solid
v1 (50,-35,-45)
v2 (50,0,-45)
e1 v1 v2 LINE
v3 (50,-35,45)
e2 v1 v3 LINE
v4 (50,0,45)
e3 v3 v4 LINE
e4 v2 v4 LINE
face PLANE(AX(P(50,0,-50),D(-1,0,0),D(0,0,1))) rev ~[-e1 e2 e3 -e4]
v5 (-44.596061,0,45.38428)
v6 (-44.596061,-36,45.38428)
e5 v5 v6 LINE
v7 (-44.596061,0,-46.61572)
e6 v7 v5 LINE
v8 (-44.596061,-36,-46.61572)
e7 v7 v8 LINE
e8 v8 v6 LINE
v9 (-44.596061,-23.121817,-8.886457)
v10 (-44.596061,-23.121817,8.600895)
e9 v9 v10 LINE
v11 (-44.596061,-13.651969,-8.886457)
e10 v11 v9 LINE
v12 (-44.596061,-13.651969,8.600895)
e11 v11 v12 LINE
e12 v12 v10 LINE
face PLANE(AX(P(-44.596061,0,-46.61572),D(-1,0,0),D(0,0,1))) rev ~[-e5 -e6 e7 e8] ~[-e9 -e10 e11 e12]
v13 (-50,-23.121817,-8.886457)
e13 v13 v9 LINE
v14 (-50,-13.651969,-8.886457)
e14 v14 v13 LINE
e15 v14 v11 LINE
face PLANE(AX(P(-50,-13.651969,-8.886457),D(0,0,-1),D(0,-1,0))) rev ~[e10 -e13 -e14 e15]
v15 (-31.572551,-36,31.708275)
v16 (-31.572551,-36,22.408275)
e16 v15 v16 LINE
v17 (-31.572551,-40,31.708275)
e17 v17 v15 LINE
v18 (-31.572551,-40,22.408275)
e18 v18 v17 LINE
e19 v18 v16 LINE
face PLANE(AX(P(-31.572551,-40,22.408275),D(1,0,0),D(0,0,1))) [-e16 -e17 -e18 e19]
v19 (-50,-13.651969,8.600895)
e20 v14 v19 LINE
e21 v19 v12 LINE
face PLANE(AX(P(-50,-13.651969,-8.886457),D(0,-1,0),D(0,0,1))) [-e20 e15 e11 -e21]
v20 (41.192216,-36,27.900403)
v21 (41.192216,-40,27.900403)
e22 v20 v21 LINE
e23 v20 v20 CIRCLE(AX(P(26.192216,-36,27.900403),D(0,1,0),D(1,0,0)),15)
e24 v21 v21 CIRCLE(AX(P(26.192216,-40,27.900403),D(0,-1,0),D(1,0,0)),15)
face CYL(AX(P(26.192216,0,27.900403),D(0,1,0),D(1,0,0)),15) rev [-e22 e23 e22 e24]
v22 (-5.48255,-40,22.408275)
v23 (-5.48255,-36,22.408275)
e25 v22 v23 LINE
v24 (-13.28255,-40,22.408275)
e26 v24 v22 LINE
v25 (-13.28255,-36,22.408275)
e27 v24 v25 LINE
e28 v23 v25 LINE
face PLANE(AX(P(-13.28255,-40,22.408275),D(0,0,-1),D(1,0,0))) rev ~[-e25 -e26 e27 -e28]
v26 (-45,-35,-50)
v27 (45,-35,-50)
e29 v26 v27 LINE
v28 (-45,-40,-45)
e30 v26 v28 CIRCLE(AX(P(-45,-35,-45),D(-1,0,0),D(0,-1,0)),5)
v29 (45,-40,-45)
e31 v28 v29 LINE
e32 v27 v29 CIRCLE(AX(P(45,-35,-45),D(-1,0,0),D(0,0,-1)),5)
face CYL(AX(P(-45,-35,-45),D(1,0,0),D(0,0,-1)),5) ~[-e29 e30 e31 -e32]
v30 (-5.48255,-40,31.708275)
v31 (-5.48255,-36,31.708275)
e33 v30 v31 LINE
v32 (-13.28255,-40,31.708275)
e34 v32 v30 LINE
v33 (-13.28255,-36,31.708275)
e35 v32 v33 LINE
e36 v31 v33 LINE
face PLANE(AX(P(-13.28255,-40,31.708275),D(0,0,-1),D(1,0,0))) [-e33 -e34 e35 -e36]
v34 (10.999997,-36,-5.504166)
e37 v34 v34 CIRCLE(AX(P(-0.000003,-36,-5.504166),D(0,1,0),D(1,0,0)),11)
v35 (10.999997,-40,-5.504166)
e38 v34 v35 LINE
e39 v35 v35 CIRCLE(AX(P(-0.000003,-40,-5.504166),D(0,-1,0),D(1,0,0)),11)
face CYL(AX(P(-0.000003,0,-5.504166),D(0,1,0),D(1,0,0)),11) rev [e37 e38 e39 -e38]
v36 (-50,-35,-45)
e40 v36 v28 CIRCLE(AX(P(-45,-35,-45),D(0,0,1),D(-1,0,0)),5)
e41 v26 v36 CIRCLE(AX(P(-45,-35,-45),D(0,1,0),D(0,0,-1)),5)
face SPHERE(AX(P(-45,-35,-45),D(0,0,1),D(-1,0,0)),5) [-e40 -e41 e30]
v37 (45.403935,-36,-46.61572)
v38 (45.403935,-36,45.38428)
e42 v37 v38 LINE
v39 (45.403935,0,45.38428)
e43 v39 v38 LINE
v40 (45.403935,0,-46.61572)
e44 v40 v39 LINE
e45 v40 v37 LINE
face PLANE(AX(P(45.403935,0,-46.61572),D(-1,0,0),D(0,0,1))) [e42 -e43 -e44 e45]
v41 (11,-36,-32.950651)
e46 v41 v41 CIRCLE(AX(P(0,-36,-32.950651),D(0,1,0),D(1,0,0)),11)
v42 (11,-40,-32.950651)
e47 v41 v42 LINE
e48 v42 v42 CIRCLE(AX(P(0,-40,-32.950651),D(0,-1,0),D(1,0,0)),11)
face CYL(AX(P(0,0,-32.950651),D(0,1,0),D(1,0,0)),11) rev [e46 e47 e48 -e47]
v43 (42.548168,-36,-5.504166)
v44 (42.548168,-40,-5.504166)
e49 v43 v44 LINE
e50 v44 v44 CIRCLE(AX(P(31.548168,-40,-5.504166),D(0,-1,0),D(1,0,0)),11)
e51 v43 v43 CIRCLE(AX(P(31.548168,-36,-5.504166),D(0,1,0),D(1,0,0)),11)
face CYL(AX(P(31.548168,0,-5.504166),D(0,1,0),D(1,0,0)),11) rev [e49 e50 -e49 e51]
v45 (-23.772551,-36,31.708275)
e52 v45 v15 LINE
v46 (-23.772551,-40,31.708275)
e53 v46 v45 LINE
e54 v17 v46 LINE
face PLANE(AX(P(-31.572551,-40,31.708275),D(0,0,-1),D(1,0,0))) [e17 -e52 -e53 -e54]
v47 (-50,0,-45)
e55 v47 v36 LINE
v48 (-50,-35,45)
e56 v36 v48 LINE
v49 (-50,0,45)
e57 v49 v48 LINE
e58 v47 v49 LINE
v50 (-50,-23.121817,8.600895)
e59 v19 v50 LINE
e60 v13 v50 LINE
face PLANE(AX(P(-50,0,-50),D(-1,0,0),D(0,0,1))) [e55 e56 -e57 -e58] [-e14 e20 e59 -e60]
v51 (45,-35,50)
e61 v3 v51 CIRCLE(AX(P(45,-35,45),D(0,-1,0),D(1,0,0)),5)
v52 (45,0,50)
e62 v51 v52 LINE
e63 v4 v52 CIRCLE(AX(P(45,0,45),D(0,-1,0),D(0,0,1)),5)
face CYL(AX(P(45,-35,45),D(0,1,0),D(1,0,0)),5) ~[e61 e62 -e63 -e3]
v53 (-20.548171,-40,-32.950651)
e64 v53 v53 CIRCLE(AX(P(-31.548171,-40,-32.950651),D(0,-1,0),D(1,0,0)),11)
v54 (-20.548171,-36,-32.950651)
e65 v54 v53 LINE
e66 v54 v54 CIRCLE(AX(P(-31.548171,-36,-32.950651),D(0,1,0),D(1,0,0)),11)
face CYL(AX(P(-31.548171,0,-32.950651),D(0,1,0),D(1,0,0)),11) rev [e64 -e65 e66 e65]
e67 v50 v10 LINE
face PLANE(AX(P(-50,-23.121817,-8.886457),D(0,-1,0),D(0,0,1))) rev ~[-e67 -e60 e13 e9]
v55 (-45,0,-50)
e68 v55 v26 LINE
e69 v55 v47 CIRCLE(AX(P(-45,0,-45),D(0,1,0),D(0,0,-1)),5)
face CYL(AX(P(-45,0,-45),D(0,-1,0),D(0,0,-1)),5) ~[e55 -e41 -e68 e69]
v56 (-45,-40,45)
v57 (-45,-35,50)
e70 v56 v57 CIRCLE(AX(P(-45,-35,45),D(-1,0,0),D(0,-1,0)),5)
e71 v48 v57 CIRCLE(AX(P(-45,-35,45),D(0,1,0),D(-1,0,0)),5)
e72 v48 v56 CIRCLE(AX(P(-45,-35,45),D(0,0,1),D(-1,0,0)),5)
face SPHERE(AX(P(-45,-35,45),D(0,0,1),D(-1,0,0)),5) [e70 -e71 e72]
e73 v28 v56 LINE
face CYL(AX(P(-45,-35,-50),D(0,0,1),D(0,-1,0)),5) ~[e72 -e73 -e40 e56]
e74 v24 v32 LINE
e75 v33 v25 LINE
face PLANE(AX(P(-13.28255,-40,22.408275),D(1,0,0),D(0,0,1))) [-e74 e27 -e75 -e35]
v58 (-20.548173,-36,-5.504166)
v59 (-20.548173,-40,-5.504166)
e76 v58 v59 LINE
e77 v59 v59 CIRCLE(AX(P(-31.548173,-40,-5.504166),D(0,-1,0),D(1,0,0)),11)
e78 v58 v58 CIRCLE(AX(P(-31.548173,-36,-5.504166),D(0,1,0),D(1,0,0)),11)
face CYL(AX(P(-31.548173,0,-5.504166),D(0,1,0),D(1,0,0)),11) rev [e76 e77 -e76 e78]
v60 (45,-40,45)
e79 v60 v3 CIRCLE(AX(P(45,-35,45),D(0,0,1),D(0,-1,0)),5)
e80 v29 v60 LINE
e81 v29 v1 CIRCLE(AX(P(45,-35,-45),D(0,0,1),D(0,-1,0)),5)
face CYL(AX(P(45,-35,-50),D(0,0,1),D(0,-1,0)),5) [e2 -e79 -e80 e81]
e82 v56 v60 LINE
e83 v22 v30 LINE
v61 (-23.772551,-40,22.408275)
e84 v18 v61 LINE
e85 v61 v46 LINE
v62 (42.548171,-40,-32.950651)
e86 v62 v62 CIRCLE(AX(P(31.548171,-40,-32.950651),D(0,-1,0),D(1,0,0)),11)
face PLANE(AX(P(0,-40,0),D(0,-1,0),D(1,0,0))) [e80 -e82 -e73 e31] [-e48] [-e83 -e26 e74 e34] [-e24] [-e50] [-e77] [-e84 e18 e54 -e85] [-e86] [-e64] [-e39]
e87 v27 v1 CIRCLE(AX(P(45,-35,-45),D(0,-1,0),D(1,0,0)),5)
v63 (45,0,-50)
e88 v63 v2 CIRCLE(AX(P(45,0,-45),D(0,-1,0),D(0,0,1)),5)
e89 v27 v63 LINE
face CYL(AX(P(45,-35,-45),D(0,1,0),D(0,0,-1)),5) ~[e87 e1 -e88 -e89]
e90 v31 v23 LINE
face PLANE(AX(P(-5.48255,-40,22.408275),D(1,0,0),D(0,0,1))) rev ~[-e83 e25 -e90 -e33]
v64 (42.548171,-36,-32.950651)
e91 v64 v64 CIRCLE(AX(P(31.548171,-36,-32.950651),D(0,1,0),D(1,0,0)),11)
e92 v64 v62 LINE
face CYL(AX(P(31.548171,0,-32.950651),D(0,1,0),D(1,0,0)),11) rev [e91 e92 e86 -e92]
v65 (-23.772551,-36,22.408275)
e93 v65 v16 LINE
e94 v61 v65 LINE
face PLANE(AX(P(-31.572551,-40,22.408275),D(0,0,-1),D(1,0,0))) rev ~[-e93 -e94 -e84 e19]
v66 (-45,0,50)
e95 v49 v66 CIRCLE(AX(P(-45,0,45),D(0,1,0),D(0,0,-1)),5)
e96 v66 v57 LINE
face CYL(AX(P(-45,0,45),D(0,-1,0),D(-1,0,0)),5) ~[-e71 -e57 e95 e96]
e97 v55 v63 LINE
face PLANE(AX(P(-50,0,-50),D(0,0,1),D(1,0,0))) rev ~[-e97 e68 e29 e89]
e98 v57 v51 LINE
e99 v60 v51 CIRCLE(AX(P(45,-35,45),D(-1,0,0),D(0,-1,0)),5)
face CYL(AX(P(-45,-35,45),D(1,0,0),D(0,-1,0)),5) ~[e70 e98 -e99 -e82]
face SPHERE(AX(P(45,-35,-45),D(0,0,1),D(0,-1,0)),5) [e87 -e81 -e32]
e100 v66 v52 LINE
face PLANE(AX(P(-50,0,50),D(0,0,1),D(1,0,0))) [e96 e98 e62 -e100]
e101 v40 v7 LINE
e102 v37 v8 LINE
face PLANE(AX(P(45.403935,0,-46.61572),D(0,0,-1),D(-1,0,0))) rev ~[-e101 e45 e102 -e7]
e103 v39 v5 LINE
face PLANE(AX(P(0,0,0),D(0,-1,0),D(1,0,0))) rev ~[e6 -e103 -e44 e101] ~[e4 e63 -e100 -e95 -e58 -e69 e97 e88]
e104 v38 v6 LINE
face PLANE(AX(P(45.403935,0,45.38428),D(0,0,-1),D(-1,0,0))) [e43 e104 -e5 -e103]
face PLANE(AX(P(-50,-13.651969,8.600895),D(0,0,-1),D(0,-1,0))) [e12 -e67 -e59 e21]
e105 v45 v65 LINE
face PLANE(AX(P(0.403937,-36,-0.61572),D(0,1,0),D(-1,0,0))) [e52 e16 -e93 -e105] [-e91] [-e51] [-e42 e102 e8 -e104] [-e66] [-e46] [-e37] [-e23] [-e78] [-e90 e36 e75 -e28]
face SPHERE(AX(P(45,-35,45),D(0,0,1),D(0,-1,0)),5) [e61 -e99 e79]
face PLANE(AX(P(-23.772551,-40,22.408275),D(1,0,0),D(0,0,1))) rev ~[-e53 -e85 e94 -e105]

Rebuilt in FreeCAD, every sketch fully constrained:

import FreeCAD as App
import Part
import Sketcher


def edges_at(feature, points):
    """Names of the edges that pass closest to the given points."""
    edges = feature.Shape.Edges
    near = lambda p: min(range(len(edges)), key=lambda i: edges[i].distToShape(Part.Vertex(*p))[0])
    return sorted({f"Edge{near(p) + 1}" for p in points})


def add_polygon(sketch, points):
    """Adds a closed chain of lines whose ends are joined by coincident constraints."""
    first, n = sketch.GeometryCount, len(points)
    for a, b in zip(points, points[1:] + points[:1]):
        sketch.addGeometry(Part.LineSegment(App.Vector(*a, 0), App.Vector(*b, 0)), False)
    for i in range(n):
        sketch.addConstraint(Sketcher.Constraint("Coincident", first + i, 2, first + (i + 1) % n, 1))

doc = App.newDocument("Part")
body = doc.addObject("PartDesign::Body", "Body")

# Sketch on XZ plane
sketch1 = doc.addObject("Sketcher::SketchObject", "Sketch")
body.addObject(sketch1)
sketch1.AttachmentSupport = (doc.XZ_Plane, [""])
sketch1.MapMode = "FlatFace"
add_polygon(sketch1, [(-50, 50), (-50, -50), (50, -50), (50, 50)])  # lines 0-3
sketch1.addGeometry(Part.Circle(App.Vector(-32, -33, 0), App.Vector(0, 0, 1), 11), False)  # 4
sketch1.addGeometry(Part.Circle(App.Vector(-32, -6, 0), App.Vector(0, 0, 1), 11), False)  # 5
sketch1.addGeometry(Part.Circle(App.Vector(0, -6, 0), App.Vector(0, 0, 1), 11), False)  # 6
sketch1.addGeometry(Part.Circle(App.Vector(0, -33, 0), App.Vector(0, 0, 1), 11), False)  # 7
sketch1.addGeometry(Part.Circle(App.Vector(32, -33, 0), App.Vector(0, 0, 1), 11), False)  # 8
sketch1.addGeometry(Part.Circle(App.Vector(32, -6, 0), App.Vector(0, 0, 1), 11), False)  # 9
sketch1.addGeometry(Part.Circle(App.Vector(26, 28, 0), App.Vector(0, 0, 1), 15), False)  # 10
sketch1.addConstraint(Sketcher.Constraint("Vertical", 0))
sketch1.addConstraint(Sketcher.Constraint("Horizontal", 1))
sketch1.addConstraint(Sketcher.Constraint("Vertical", 2))
sketch1.addConstraint(Sketcher.Constraint("Horizontal", 3))
sketch1.addConstraint(Sketcher.Constraint("Equal", 4, 5))
sketch1.addConstraint(Sketcher.Constraint("Equal", 5, 6))
sketch1.addConstraint(Sketcher.Constraint("Equal", 6, 7))
sketch1.addConstraint(Sketcher.Constraint("Equal", 7, 8))
sketch1.addConstraint(Sketcher.Constraint("Equal", 8, 9))
sketch1.addConstraint(Sketcher.Constraint("Symmetric", 0, 2, 2, 2, -1, 1))
sketch1.addConstraint(Sketcher.Constraint("Symmetric", 4, 3, 8, 3, -2))
sketch1.addConstraint(Sketcher.Constraint("Symmetric", 5, 3, 9, 3, -2))
sketch1.addConstraint(Sketcher.Constraint("PointOnObject", 7, 3, -2))
sketch1.addConstraint(Sketcher.Constraint("Horizontal", 5, 3, 6, 3))
sketch1.addConstraint(Sketcher.Constraint("Horizontal", 4, 3, 7, 3))
sketch1.addConstraint(Sketcher.Constraint("Vertical", 4, 3, 5, 3))
sketch1.addConstraint(Sketcher.Constraint("Equal", 3, 0))
sketch1.addConstraint(Sketcher.Constraint("Diameter", 4, 22.0))
sketch1.addConstraint(Sketcher.Constraint("Diameter", 10, 30.0))
sketch1.addConstraint(Sketcher.Constraint("DistanceX", 1, 1, 1, 2, 100.0))
sketch1.addConstraint(Sketcher.Constraint("DistanceX", 4, 3, -1, 1, 31.548171))
sketch1.addConstraint(Sketcher.Constraint("DistanceY", 4, 3, -1, 1, 32.950651))
sketch1.addConstraint(Sketcher.Constraint("DistanceX", 5, 3, 6, 3, 31.54817))
sketch1.addConstraint(Sketcher.Constraint("DistanceY", 9, 3, 10, 3, 33.404569))
sketch1.addConstraint(Sketcher.Constraint("DistanceX", 6, 3, 10, 3, 26.192219))
sketch1.addConstraint(Sketcher.Constraint("DistanceY", 5, 3, -1, 1, 5.504166))
pad1 = doc.addObject("PartDesign::Pad", "Pad")
body.addObject(pad1)
pad1.Profile = sketch1
pad1.Length = 40

# Sketch on XZ plane
sketch2 = doc.addObject("Sketcher::SketchObject", "Sketch001")
body.addObject(sketch2)
sketch2.AttachmentSupport = (doc.XZ_Plane, [""])
sketch2.MapMode = "FlatFace"
add_polygon(sketch2, [(45, 45), (45, -47), (-45, -47), (-45, 45)])  # lines 0-3
sketch2.addConstraint(Sketcher.Constraint("Vertical", 0))
sketch2.addConstraint(Sketcher.Constraint("Horizontal", 1))
sketch2.addConstraint(Sketcher.Constraint("Vertical", 2))
sketch2.addConstraint(Sketcher.Constraint("Horizontal", 3))
sketch2.addConstraint(Sketcher.Constraint("DistanceY", 0, 2, 0, 1, 92.0))
sketch2.addConstraint(Sketcher.Constraint("DistanceX", 1, 2, 1, 1, 89.999996))
sketch2.addConstraint(Sketcher.Constraint("DistanceY", 0, 2, -1, 1, 46.61572))
sketch2.addConstraint(Sketcher.Constraint("DistanceX", 1, 2, -1, 1, 44.596061))
pocket1 = doc.addObject("PartDesign::Pocket", "Pocket")
body.addObject(pocket1)
pocket1.Profile = sketch2
pocket1.Length = 36
pocket1.Reversed = True

# Sketch on XZ plane
sketch3 = doc.addObject("Sketcher::SketchObject", "Sketch002")
body.addObject(sketch3)
sketch3.AttachmentSupport = (doc.XZ_Plane, [""])
sketch3.MapMode = "FlatFace"
sketch3.AttachmentOffset = App.Placement(App.Vector(0, 0, 40), App.Rotation())
add_polygon(sketch3, [(-13, 32), (-13, 22), (-5, 22), (-5, 32)])  # lines 0-3
add_polygon(sketch3, [(-32, 32), (-32, 22), (-24, 22), (-24, 32)])  # lines 4-7
sketch3.addConstraint(Sketcher.Constraint("Vertical", 0))
sketch3.addConstraint(Sketcher.Constraint("Horizontal", 1))
sketch3.addConstraint(Sketcher.Constraint("Vertical", 2))
sketch3.addConstraint(Sketcher.Constraint("Horizontal", 3))
sketch3.addConstraint(Sketcher.Constraint("Vertical", 4))
sketch3.addConstraint(Sketcher.Constraint("Horizontal", 5))
sketch3.addConstraint(Sketcher.Constraint("Vertical", 6))
sketch3.addConstraint(Sketcher.Constraint("Horizontal", 7))
sketch3.addConstraint(Sketcher.Constraint("Horizontal", 1, 2, 4, 2))
sketch3.addConstraint(Sketcher.Constraint("Horizontal", 3, 2, 6, 2))
sketch3.addConstraint(Sketcher.Constraint("Equal", 3, 5))
sketch3.addConstraint(Sketcher.Constraint("DistanceX", 1, 1, 1, 2, 7.8))
sketch3.addConstraint(Sketcher.Constraint("DistanceY", 0, 2, 0, 1, 9.3))
sketch3.addConstraint(Sketcher.Constraint("DistanceX", 4, 2, 0, 2, 18.290001))
sketch3.addConstraint(Sketcher.Constraint("DistanceX", 0, 2, -1, 1, 13.28255))
sketch3.addConstraint(Sketcher.Constraint("DistanceY", -1, 1, 0, 2, 22.408275))
pocket2 = doc.addObject("PartDesign::Pocket", "Pocket001")
body.addObject(pocket2)
pocket2.Profile = sketch3
pocket2.Length = 25
doc.recompute()

fillet = doc.addObject("PartDesign::Fillet", "Fillet")
body.addObject(fillet)
fillet.Base = (pocket2, edges_at(pocket2, [(50, -40, 0)]))
fillet.Radius = 5
doc.recompute()

fillet2 = doc.addObject("PartDesign::Fillet", "Fillet001")
body.addObject(fillet2)
fillet2.Base = (fillet, edges_at(fillet, [(-50, -40, 0)]))
fillet2.Radius = 5
doc.recompute()

fillet3 = doc.addObject("PartDesign::Fillet", "Fillet002")
body.addObject(fillet3)
fillet3.Base = (fillet2, edges_at(fillet2, [(0, -40, -50), (0, -40, 50)]))
fillet3.Radius = 5

# Sketch on YZ plane
sketch4 = doc.addObject("Sketcher::SketchObject", "Sketch003")
body.addObject(sketch4)
sketch4.AttachmentSupport = (doc.YZ_Plane, [""])
sketch4.MapMode = "FlatFace"
sketch4.AttachmentOffset = App.Placement(App.Vector(0, 0, -50), App.Rotation())
add_polygon(sketch4, [(-14, 9), (-14, -9), (-23, -9), (-23, 9)])  # lines 0-3
sketch4.addConstraint(Sketcher.Constraint("Vertical", 0))
sketch4.addConstraint(Sketcher.Constraint("Horizontal", 1))
sketch4.addConstraint(Sketcher.Constraint("Vertical", 2))
sketch4.addConstraint(Sketcher.Constraint("Horizontal", 3))
sketch4.addConstraint(Sketcher.Constraint("DistanceX", 1, 2, 1, 1, 9.469847))
sketch4.addConstraint(Sketcher.Constraint("DistanceY", 0, 2, 0, 1, 17.487352))
sketch4.addConstraint(Sketcher.Constraint("DistanceX", 0, 2, -1, 1, 13.651969))
sketch4.addConstraint(Sketcher.Constraint("DistanceY", 0, 2, -1, 1, 8.886457))
pocket3 = doc.addObject("PartDesign::Pocket", "Pocket002")
body.addObject(pocket3)
pocket3.Profile = sketch4
pocket3.Length = 25
pocket3.Reversed = True

doc.recompute()
